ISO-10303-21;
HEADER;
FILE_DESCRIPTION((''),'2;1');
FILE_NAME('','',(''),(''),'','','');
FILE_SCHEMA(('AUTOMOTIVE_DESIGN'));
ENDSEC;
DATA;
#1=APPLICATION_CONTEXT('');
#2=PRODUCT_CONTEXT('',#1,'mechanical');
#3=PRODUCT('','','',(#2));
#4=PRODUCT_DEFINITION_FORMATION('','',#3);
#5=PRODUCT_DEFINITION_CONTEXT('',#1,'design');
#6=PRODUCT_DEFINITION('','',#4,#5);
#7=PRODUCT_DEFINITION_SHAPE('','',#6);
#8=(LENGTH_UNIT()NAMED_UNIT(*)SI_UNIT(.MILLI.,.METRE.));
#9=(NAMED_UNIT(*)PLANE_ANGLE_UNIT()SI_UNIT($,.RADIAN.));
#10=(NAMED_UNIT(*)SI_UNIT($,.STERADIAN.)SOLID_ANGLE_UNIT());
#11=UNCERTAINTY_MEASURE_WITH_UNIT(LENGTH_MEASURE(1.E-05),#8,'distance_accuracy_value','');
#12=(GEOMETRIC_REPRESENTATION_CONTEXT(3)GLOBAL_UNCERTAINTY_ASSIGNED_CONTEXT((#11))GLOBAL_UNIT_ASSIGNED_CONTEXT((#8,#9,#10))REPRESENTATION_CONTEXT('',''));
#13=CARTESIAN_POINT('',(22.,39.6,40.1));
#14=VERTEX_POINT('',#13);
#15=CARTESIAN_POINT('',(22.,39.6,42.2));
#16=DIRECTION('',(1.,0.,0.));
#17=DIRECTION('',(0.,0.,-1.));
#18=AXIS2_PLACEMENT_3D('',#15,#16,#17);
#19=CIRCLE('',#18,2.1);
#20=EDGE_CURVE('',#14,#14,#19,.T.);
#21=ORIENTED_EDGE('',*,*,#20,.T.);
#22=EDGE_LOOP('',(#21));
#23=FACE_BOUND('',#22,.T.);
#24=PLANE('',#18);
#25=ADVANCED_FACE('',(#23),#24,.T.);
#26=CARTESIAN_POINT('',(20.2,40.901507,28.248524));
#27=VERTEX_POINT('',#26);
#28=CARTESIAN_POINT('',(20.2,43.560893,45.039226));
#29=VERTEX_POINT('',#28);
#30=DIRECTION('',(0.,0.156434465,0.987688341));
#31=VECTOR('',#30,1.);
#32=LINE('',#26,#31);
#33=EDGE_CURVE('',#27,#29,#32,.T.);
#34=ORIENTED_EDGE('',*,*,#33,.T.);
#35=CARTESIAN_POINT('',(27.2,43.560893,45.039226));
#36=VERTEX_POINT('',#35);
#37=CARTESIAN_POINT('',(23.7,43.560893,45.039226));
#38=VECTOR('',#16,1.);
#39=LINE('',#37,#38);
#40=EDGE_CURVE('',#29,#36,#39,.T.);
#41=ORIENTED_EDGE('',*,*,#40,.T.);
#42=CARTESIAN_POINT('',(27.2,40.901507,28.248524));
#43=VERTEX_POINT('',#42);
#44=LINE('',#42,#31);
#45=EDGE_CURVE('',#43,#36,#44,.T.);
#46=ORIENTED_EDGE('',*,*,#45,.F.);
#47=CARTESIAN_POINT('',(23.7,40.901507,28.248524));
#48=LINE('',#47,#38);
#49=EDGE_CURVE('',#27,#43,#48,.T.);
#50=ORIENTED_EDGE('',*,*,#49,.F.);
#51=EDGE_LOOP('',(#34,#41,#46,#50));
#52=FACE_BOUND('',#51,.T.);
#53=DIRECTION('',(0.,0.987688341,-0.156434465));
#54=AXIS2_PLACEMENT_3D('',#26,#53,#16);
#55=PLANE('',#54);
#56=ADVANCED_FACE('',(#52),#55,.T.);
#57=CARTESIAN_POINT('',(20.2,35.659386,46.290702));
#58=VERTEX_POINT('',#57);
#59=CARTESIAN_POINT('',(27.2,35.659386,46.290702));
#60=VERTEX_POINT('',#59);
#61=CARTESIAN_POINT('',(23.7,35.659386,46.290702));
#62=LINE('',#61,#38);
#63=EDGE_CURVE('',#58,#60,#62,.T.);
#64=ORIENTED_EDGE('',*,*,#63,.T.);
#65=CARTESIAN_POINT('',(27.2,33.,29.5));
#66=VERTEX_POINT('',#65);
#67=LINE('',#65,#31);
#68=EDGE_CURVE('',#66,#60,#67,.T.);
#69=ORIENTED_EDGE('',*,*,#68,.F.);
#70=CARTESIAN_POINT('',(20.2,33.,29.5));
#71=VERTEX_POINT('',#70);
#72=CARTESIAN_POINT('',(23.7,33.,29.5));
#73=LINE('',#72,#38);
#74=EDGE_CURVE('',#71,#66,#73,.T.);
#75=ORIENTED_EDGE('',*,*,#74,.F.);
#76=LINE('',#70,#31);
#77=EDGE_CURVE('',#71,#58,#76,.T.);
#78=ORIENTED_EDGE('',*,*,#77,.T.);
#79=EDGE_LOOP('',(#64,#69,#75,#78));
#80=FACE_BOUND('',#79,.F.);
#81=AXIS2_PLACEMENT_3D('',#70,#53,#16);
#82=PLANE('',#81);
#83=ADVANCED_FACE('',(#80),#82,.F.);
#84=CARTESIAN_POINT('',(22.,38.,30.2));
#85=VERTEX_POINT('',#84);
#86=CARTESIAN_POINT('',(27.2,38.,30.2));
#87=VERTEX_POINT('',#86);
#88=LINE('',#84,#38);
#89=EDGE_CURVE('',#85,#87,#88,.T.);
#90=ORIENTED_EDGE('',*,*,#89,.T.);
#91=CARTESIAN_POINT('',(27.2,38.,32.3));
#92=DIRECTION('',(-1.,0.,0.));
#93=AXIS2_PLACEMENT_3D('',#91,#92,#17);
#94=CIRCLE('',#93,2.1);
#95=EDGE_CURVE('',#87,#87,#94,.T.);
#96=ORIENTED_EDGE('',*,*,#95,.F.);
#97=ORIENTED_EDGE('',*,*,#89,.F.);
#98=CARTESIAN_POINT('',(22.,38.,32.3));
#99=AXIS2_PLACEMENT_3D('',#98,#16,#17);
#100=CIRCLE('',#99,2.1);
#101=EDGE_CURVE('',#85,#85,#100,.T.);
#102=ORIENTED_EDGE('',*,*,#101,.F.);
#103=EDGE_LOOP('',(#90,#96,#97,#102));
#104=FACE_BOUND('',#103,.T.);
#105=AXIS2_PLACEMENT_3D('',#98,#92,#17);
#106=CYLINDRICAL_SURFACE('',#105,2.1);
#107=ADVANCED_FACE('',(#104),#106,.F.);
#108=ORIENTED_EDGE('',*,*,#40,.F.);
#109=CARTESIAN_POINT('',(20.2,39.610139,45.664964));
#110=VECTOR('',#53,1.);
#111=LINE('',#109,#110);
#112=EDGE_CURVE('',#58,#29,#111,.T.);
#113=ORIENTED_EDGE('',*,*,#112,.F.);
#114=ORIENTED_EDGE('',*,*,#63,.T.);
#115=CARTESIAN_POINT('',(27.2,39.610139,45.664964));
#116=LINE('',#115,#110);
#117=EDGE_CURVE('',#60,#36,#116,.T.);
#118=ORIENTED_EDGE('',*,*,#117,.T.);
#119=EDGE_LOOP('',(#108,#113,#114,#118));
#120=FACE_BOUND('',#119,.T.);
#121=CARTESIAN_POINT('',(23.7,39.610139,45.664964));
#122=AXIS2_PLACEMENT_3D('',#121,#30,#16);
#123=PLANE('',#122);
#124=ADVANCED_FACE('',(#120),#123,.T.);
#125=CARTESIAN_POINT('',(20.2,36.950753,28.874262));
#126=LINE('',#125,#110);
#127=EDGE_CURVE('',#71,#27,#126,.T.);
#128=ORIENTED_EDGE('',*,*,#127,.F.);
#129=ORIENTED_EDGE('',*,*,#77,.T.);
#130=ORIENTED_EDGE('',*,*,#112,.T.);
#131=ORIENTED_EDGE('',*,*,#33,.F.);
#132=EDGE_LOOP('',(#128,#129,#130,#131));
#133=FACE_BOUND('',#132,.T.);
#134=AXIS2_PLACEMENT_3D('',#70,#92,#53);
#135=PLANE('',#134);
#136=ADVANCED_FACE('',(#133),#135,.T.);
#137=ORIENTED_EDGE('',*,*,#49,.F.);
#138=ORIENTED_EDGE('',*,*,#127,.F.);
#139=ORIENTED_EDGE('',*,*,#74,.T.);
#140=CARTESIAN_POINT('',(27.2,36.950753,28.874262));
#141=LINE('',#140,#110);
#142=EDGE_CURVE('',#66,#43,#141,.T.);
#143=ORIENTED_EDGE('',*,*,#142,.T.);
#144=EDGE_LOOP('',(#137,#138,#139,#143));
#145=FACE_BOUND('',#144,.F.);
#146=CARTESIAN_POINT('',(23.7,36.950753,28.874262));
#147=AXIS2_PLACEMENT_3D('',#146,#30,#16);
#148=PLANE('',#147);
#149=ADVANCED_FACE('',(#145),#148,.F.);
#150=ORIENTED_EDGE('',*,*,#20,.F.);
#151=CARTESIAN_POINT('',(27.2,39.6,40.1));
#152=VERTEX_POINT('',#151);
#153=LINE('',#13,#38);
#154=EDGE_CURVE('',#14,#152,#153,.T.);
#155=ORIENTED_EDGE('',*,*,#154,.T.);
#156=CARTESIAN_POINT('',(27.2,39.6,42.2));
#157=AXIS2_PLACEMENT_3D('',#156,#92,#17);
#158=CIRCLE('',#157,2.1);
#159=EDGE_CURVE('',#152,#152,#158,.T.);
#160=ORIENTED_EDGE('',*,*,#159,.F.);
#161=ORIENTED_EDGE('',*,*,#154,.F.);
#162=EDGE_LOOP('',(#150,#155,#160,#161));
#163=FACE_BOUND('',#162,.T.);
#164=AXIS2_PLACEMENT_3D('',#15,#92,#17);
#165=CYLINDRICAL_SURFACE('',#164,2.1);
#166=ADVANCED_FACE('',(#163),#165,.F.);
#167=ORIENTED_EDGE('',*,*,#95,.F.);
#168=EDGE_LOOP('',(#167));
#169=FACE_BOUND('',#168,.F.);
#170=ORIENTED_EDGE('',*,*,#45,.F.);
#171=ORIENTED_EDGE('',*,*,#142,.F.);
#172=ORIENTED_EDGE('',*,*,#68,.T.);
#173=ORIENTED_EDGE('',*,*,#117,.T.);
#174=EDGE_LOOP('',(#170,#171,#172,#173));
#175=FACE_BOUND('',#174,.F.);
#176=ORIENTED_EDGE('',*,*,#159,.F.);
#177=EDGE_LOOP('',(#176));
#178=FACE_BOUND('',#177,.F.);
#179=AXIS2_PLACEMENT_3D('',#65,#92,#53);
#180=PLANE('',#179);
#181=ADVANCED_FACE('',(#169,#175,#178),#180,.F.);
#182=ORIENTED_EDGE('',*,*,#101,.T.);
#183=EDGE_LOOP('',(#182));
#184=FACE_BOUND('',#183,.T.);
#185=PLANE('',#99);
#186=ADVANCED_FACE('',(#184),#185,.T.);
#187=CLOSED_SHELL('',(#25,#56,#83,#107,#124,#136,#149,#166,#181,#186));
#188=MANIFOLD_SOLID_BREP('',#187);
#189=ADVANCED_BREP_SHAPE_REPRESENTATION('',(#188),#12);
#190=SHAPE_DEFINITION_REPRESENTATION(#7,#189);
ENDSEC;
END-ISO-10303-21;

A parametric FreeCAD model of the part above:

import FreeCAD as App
import Part
import Sketcher
from FreeCAD import Vector
Q = App.Units.Quantity

doc = App.newDocument("Part")
body = doc.addObject("PartDesign::Body", "Body")

# Sketch on YZ plane
sketch1 = body.newObject("Sketcher::SketchObject", "Sketch")
sketch1.AttachmentSupport = (doc.getObject("YZ_Plane"), [""])
sketch1.MapMode = "FlatFace"
sketch1.AttachmentOffset = App.Placement(Vector(0, 0, 23), App.Rotation())
sketch1.addGeometry(Part.Circle(Vector(39.6, 42.2, 0), Vector(0, 0, 1), 2.1), False)
sketch1.addConstraint(Sketcher.Constraint("Diameter", 0, Q("4.2 mm")))
sketch1.addConstraint(Sketcher.Constraint("DistanceX", -1, 1, 0, 3, Q("39.6 mm")))
sketch1.addConstraint(Sketcher.Constraint("DistanceY", -1, 1, 0, 3, Q("42.2 mm")))
pad1 = body.newObject("PartDesign::Pad", "Pad")
pad1.Profile = sketch1
pad1.Length = 10
body2 = doc.addObject("PartDesign::Body", "Body001")
body2.AllowCompound = True

# Sketch on YZ plane
sketch2 = body2.newObject("Sketcher::SketchObject", "Sketch001")
sketch2.AttachmentSupport = (doc.getObject("YZ_Plane001"), [""])
sketch2.MapMode = "FlatFace"
sketch2.AttachmentOffset = App.Placement(Vector(0, 0, 23), App.Rotation())
sketch2.addGeometry(Part.Circle(Vector(38, 32.3, 0), Vector(0, 0, 1), 2.1), False)
sketch2.addConstraint(Sketcher.Constraint("Diameter", 0, Q("4.2 mm")))
sketch2.addConstraint(Sketcher.Constraint("DistanceX", -1, 1, 0, 3, Q("38 mm")))
sketch2.addConstraint(Sketcher.Constraint("DistanceY", -1, 1, 0, 3, Q("32.3 mm")))
pad2 = body2.newObject("PartDesign::Pad", "Pad001")
pad2.Profile = sketch2
pad2.Length = 10
doc.recompute()

boolean = body2.newObject("PartDesign::Boolean", "Boolean")
boolean.Type = "Fuse"
boolean.addObjects([body])
body3 = doc.addObject("PartDesign::Body", "Body002")
body3.AllowCompound = True
doc.recompute()

body2.Placement = App.Placement(Vector(-1, 0, 0), App.Rotation(Vector(0, 0, 1), 0))
boolean2 = body3.newObject("PartDesign::Boolean", "Boolean001")
boolean2.Type = "Fuse"
boolean2.addObjects([body2])
body4 = doc.addObject("PartDesign::Body", "Body003")

# Sketch on XY plane
sketch3 = body4.newObject("Sketcher::SketchObject", "Sketch002")
sketch3.AttachmentSupport = (doc.getObject("XY_Plane003"), [""])
sketch3.MapMode = "FlatFace"
sketch3.addGeometry(Part.LineSegment(Vector(0, 8, 0), Vector(0, 0, 0)), False)
sketch3.addGeometry(Part.LineSegment(Vector(0, 0, 0), Vector(7, 0, 0)), False)
sketch3.addGeometry(Part.LineSegment(Vector(7, 0, 0), Vector(7, 8, 0)), False)
sketch3.addGeometry(Part.LineSegment(Vector(7, 8, 0), Vector(0, 8, 0)), False)
sketch3.addConstraint(Sketcher.Constraint("Coincident", 0, 2, 1, 1))
sketch3.addConstraint(Sketcher.Constraint("Coincident", 1, 2, 2, 1))
sketch3.addConstraint(Sketcher.Constraint("Coincident", 2, 2, 3, 1))
sketch3.addConstraint(Sketcher.Constraint("Coincident", 3, 2, 0, 1))
sketch3.addConstraint(Sketcher.Constraint("Vertical", 0))
sketch3.addConstraint(Sketcher.Constraint("Horizontal", 1))
sketch3.addConstraint(Sketcher.Constraint("Vertical", 2))
sketch3.addConstraint(Sketcher.Constraint("Horizontal", 3))
sketch3.addConstraint(Sketcher.Constraint("Coincident", 0, 2, -1, 1))
sketch3.addConstraint(Sketcher.Constraint("DistanceX", 1, 1, 1, 2, Q("7 mm")))
sketch3.addConstraint(Sketcher.Constraint("DistanceY", 0, 2, 0, 1, Q("8 mm")))
pad3 = body4.newObject("PartDesign::Pad", "Pad002")
pad3.Profile = sketch3
pad3.Length = 17
body5 = doc.addObject("PartDesign::Body", "Body004")
doc.recompute()

body4.Placement = App.Placement(Vector(20.2, 33, 29.5), App.Rotation(Vector(-1, 0, 0), 9))
boolean3 = body5.newObject("PartDesign::Boolean", "Boolean002")
boolean3.Type = "Fuse"
boolean3.addObjects([body4])
doc.recompute()

boolean4 = body5.newObject("PartDesign::Boolean", "Boolean003")
boolean4.Type = "Cut"
boolean4.addObjects([body3])

doc.recompute()
